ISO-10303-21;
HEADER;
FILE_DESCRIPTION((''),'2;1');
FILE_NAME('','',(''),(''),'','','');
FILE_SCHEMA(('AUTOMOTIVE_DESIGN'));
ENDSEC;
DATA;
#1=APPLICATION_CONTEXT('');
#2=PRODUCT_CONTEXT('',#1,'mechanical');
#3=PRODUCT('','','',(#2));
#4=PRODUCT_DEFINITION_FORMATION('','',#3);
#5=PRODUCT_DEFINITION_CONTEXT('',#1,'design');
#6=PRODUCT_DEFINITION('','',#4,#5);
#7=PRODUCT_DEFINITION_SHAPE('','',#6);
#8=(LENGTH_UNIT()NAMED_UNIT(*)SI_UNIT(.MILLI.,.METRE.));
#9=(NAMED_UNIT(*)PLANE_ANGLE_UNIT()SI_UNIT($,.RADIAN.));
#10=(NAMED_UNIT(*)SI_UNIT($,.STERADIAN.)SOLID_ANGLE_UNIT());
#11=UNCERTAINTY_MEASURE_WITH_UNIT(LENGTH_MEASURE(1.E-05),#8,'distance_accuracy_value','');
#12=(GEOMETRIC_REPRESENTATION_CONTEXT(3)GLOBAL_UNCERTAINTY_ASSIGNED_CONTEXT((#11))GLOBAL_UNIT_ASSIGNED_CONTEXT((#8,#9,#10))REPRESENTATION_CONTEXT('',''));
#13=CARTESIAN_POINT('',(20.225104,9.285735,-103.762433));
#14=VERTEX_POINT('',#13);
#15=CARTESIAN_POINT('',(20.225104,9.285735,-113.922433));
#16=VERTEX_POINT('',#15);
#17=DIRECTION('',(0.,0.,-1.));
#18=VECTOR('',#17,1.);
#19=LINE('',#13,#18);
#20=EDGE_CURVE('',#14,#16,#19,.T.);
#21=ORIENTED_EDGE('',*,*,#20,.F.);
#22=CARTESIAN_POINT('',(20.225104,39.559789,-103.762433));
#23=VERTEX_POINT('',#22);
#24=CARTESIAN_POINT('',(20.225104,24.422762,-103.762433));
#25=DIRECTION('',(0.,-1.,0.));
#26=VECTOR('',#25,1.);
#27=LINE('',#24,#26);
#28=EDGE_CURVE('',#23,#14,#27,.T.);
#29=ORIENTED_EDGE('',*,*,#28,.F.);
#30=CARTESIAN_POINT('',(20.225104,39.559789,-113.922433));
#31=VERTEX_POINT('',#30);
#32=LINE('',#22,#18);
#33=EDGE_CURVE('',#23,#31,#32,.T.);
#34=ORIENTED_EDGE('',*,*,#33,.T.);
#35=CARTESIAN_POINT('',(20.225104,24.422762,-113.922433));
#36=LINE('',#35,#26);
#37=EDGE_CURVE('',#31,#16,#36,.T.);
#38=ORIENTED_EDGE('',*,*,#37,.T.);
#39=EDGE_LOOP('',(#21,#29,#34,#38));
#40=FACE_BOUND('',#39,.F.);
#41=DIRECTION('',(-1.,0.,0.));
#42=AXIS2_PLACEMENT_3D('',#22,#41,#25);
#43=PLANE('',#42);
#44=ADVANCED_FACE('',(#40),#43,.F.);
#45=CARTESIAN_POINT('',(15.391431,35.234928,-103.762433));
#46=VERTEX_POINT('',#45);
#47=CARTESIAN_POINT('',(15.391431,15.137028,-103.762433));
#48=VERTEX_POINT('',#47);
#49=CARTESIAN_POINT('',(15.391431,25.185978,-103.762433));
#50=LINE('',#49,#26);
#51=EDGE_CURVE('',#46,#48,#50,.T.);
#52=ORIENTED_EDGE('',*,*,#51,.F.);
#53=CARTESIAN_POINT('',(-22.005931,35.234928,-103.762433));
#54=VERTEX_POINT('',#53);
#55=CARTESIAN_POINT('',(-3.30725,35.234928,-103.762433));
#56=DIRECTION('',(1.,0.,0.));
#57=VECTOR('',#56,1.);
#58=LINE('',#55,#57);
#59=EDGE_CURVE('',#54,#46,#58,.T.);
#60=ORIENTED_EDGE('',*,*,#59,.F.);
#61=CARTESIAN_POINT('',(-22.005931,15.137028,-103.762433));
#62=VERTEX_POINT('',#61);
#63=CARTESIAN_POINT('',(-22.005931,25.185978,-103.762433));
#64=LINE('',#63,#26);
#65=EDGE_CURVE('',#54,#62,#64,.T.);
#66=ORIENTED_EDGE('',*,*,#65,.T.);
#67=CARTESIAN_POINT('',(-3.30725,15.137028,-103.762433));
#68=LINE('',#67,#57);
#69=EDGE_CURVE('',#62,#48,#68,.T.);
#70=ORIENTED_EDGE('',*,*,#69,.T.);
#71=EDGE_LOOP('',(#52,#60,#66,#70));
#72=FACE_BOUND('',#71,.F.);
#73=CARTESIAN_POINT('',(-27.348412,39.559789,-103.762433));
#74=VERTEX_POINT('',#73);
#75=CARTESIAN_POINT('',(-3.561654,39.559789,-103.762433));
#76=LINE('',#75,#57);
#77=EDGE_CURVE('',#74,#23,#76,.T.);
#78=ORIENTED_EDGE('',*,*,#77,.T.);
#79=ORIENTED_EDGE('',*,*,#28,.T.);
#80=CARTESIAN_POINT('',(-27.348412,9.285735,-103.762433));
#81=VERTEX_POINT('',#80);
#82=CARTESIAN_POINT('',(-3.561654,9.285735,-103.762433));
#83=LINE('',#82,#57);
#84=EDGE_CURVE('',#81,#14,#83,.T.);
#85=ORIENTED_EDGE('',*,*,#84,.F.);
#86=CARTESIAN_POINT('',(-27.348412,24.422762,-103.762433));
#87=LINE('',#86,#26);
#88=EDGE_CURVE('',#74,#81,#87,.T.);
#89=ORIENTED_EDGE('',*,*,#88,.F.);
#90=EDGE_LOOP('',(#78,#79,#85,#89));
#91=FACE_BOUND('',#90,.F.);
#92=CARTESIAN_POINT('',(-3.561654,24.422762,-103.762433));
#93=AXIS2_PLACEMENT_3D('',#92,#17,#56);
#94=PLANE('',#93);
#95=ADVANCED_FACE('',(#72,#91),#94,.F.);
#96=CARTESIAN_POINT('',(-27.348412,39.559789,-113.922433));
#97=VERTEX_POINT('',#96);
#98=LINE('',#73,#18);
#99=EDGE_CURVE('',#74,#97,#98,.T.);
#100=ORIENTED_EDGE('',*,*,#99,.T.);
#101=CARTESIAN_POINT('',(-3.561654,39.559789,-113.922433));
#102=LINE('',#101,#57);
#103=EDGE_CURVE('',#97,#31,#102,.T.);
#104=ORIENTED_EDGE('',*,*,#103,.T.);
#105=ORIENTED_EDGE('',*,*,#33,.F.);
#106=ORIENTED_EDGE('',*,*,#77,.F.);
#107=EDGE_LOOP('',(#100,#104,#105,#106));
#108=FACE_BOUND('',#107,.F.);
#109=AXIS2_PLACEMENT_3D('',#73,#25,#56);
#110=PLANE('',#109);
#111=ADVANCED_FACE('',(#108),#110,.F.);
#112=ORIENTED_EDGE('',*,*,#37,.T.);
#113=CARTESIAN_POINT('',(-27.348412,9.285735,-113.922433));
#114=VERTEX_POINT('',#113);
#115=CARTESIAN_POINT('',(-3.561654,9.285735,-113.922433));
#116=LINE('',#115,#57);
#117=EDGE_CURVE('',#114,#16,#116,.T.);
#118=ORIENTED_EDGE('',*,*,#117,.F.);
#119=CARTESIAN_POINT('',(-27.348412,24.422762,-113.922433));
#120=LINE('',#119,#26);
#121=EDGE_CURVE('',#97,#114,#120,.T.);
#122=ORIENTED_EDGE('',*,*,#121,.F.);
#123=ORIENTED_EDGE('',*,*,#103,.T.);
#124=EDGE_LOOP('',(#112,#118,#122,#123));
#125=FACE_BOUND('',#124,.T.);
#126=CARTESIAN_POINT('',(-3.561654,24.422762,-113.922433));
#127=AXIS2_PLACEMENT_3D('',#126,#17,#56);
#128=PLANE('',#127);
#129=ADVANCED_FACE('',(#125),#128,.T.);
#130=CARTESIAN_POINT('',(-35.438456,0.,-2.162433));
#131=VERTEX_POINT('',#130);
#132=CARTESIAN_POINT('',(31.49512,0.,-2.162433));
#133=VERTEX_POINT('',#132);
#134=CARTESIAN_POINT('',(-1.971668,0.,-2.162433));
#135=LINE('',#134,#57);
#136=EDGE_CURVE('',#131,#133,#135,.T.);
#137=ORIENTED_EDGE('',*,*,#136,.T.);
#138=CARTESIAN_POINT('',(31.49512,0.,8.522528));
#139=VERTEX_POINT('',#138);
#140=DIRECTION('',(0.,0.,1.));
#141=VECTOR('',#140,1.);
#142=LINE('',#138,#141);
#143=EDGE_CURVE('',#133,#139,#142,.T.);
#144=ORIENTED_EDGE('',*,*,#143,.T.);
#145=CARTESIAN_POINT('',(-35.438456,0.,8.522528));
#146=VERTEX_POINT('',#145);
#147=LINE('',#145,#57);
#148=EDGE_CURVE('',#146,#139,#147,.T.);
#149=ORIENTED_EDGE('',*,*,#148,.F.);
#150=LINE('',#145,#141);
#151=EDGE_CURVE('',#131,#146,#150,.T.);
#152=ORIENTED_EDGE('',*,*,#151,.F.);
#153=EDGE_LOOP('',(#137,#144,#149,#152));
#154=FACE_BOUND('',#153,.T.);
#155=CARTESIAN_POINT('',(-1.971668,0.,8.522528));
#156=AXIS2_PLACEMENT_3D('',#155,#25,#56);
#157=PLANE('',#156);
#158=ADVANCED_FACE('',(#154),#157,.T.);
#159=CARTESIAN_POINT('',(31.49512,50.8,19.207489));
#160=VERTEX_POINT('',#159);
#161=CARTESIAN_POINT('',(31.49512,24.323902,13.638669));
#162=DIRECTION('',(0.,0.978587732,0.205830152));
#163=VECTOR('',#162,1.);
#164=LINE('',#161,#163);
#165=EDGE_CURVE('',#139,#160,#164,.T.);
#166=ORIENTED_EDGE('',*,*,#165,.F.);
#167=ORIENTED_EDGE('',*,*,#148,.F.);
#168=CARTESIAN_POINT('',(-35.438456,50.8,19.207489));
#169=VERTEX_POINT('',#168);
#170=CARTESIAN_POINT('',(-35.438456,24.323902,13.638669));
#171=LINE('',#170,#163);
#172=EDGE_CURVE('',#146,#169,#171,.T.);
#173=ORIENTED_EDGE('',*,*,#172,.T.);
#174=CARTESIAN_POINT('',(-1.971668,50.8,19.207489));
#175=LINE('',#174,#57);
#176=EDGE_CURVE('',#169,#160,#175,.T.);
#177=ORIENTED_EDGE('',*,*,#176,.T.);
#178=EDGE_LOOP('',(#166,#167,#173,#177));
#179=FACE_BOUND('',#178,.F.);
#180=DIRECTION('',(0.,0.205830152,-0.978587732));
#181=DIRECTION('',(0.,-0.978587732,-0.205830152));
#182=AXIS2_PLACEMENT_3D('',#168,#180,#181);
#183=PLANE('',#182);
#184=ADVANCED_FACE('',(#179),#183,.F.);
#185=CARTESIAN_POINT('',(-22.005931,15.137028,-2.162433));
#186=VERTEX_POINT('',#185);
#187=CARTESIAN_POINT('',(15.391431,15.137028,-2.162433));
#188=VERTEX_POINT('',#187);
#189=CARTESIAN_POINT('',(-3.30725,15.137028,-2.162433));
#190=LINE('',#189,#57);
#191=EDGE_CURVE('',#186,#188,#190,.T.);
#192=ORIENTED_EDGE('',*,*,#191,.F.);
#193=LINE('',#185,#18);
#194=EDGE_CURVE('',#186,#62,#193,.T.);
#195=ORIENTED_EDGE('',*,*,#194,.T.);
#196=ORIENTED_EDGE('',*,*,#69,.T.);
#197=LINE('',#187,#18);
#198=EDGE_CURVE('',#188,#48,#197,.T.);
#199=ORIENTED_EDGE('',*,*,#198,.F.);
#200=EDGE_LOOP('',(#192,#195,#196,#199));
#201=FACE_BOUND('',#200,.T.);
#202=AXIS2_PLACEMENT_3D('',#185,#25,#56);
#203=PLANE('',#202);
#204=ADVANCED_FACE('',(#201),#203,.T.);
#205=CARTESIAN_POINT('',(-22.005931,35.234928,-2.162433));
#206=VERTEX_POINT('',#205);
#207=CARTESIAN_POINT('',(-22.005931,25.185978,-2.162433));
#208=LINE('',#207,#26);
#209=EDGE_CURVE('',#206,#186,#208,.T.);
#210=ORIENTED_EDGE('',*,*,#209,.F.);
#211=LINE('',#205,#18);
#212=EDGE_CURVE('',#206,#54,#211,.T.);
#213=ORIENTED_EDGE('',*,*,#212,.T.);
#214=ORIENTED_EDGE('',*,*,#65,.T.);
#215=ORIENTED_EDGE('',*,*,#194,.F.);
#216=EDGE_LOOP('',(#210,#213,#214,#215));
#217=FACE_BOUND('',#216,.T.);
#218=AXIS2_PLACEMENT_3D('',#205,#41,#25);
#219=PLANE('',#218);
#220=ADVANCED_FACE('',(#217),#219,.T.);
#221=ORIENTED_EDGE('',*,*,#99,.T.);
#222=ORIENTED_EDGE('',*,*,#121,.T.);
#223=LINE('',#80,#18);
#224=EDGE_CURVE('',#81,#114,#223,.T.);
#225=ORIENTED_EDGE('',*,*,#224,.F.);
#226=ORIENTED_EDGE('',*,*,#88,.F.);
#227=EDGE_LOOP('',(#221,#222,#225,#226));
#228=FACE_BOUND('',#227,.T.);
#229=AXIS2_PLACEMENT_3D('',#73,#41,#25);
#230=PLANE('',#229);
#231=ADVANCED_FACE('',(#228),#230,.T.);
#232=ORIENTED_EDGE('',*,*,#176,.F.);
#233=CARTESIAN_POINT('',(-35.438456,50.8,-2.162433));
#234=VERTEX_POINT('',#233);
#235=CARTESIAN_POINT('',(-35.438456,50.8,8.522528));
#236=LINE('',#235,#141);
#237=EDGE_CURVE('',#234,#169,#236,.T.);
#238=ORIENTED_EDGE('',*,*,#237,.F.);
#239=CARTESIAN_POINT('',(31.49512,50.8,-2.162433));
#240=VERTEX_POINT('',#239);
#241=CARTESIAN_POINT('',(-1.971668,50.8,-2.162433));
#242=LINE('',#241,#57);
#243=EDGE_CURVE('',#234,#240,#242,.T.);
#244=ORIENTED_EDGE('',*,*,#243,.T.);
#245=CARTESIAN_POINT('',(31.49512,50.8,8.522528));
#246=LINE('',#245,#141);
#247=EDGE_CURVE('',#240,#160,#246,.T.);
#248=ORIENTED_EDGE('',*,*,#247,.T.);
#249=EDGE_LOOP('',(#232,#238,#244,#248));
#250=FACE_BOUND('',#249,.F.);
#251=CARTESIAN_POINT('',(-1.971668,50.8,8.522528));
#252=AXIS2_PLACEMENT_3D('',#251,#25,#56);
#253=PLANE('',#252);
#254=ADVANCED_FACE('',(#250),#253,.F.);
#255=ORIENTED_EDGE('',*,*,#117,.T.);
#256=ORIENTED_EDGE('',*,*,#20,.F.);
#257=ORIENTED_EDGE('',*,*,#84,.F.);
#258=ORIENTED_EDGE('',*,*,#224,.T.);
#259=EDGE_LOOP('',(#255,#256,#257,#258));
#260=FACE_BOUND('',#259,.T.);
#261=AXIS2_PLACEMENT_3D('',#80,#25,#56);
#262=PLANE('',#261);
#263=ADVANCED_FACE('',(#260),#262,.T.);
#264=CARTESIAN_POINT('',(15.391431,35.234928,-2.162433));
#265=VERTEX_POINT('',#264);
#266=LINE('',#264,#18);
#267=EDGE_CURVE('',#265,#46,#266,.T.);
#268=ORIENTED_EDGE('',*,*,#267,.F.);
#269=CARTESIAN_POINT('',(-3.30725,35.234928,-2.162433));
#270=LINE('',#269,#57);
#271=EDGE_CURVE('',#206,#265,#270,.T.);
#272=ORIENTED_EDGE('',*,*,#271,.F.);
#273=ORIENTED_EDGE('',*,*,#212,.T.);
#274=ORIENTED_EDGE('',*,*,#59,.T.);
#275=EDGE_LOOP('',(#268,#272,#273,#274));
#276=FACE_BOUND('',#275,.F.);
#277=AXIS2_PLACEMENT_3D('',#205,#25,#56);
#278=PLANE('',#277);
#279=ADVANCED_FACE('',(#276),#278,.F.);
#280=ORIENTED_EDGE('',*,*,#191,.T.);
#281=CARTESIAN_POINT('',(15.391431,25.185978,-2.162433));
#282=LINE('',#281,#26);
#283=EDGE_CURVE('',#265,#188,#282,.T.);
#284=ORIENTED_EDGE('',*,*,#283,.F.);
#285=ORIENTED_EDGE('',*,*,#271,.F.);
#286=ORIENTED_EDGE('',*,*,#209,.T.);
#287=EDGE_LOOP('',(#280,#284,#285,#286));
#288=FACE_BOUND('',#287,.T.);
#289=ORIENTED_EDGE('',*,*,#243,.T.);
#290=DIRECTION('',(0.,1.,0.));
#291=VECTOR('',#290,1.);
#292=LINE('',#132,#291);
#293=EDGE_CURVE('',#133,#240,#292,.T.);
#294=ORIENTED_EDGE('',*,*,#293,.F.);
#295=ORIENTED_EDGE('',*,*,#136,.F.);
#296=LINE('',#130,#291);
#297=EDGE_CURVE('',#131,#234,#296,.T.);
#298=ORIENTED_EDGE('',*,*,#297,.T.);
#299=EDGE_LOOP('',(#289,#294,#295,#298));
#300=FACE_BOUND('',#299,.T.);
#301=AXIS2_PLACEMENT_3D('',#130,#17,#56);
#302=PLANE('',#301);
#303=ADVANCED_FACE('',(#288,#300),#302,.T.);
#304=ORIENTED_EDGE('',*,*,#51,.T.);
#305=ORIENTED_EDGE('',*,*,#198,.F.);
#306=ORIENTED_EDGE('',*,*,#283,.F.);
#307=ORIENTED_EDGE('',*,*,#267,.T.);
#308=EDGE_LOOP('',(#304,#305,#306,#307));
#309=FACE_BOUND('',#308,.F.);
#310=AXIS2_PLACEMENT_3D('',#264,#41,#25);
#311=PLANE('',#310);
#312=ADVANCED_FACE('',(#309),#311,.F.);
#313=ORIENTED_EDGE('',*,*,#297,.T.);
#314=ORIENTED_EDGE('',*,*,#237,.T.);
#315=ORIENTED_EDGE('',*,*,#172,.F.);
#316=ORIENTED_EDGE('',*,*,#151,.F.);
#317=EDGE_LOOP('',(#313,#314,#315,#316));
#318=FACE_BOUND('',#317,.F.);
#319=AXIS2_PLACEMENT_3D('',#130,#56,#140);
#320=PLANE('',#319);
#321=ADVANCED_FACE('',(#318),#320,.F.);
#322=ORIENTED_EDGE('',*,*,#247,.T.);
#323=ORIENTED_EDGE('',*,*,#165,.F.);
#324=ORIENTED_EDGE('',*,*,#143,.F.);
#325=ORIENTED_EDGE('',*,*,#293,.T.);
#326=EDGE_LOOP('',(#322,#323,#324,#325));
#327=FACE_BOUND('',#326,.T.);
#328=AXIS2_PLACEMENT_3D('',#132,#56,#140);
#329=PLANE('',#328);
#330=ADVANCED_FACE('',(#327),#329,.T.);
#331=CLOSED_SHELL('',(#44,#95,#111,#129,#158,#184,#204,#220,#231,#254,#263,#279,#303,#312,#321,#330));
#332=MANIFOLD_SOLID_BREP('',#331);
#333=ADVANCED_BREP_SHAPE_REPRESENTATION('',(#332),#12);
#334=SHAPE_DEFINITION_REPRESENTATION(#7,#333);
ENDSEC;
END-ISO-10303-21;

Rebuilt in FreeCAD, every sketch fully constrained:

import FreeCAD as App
import Part
import Sketcher
Q = App.Units.Quantity

doc = App.newDocument("Part")
body = doc.addObject("PartDesign::Body", "Body")

# Sketch on XZ plane
sketch1 = doc.addObject("Sketcher::SketchObject", "Sketch")
body.addObject(sketch1)
sketch1.AttachmentSupport = (doc.XZ_Plane, [""])
sketch1.MapMode = "FlatFace"
sketch1.addGeometry(Part.LineSegment(App.Vector(-35, 19, 0), App.Vector(-35, -2, 0)), False)
sketch1.addGeometry(Part.LineSegment(App.Vector(-35, -2, 0), App.Vector(31, -2, 0)), False)
sketch1.addGeometry(Part.LineSegment(App.Vector(31, -2, 0), App.Vector(31, 19, 0)), False)
sketch1.addGeometry(Part.LineSegment(App.Vector(31, 19, 0), App.Vector(-35, 19, 0)), False)
sketch1.addConstraint(Sketcher.Constraint("Coincident", 0, 2, 1, 1))
sketch1.addConstraint(Sketcher.Constraint("Coincident", 1, 2, 2, 1))
sketch1.addConstraint(Sketcher.Constraint("Coincident", 2, 2, 3, 1))
sketch1.addConstraint(Sketcher.Constraint("Coincident", 3, 2, 0, 1))
sketch1.addConstraint(Sketcher.Constraint("Vertical", 0))
sketch1.addConstraint(Sketcher.Constraint("Horizontal", 1))
sketch1.addConstraint(Sketcher.Constraint("Vertical", 2))
sketch1.addConstraint(Sketcher.Constraint("Horizontal", 3))
sketch1.addConstraint(Sketcher.Constraint("DistanceY", 0, 2, 0, 1, 21.369922))
sketch1.addConstraint(Sketcher.Constraint("DistanceX", 1, 1, 1, 2, 66.933575))
sketch1.addConstraint(Sketcher.Constraint("DistanceX", -1, 1, 1, 2, 31.49512))
sketch1.addConstraint(Sketcher.Constraint("DistanceY", -1, 1, 2, 2, 19.207489))
pad1 = doc.addObject("PartDesign::Pad", "Pad")
body.addObject(pad1)
pad1.Profile = sketch1
pad1.Length = Q("2 in")
pad1.Reversed = True

# Sketch on YZ plane
sketch2 = doc.addObject("Sketcher::SketchObject", "Sketch001")
body.addObject(sketch2)
sketch2.AttachmentSupport = (doc.YZ_Plane, [""])
sketch2.MapMode = "FlatFace"
sketch2.AttachmentOffset = App.Placement(App.Vector(0, 0, -35.438456), App.Rotation())
sketch2.addGeometry(Part.LineSegment(App.Vector(0, 19, 0), App.Vector(51, 19, 0)), False)
sketch2.addGeometry(Part.LineSegment(App.Vector(51, 19, 0), App.Vector(0, 9, 0)), False)
sketch2.addGeometry(Part.LineSegment(App.Vector(0, 9, 0), App.Vector(0, 19, 0)), False)
sketch2.addConstraint(Sketcher.Constraint("Coincident", 0, 2, 1, 1))
sketch2.addConstraint(Sketcher.Constraint("Coincident", 1, 2, 2, 1))
sketch2.addConstraint(Sketcher.Constraint("Coincident", 2, 2, 0, 1))
sketch2.addConstraint(Sketcher.Constraint("Horizontal", 0))
sketch2.addConstraint(Sketcher.Constraint("Vertical", 2))
sketch2.addConstraint(Sketcher.Constraint("PointOnObject", 1, 2, -2))
sketch2.addConstraint(Sketcher.Constraint("DistanceX", 0, 1, 0, 2, Q("2 in")))
sketch2.addConstraint(Sketcher.Constraint("DistanceY", 2, 1, 2, 2, 10.684961))
sketch2.addConstraint(Sketcher.Constraint("DistanceY", -1, 1, 0, 2, 19.207489))
pocket1 = doc.addObject("PartDesign::Pocket", "Pocket")
body.addObject(pocket1)
pocket1.Profile = sketch2
pocket1.Length = Q("3 in")
pocket1.Reversed = True

# Sketch on XY plane
sketch3 = doc.addObject("Sketcher::SketchObject", "Sketch002")
body.addObject(sketch3)
sketch3.AttachmentSupport = (doc.XY_Plane, [""])
sketch3.MapMode = "FlatFace"
sketch3.AttachmentOffset = App.Placement(App.Vector(0, 0, -2.162433), App.Rotation())
sketch3.addGeometry(Part.LineSegment(App.Vector(-22, 15, 0), App.Vector(-22, 35, 0)), False)
sketch3.addGeometry(Part.LineSegment(App.Vector(-22, 35, 0), App.Vector(15, 35, 0)), False)
sketch3.addGeometry(Part.LineSegment(App.Vector(15, 35, 0), App.Vector(15, 15, 0)), False)
sketch3.addGeometry(Part.LineSegment(App.Vector(15, 15, 0), App.Vector(-22, 15, 0)), False)
sketch3.addConstraint(Sketcher.Constraint("Coincident", 0, 2, 1, 1))
sketch3.addConstraint(Sketcher.Constraint("Coincident", 1, 2, 2, 1))
sketch3.addConstraint(Sketcher.Constraint("Coincident", 2, 2, 3, 1))
sketch3.addConstraint(Sketcher.Constraint("Coincident", 3, 2, 0, 1))
sketch3.addConstraint(Sketcher.Constraint("Vertical", 0))
sketch3.addConstraint(Sketcher.Constraint("Horizontal", 1))
sketch3.addConstraint(Sketcher.Constraint("Vertical", 2))
sketch3.addConstraint(Sketcher.Constraint("Horizontal", 3))
sketch3.addConstraint(Sketcher.Constraint("DistanceY", 0, 1, 0, 2, 20.0979))
sketch3.addConstraint(Sketcher.Constraint("DistanceX", 1, 1, 1, 2, 37.397362))
sketch3.addConstraint(Sketcher.Constraint("DistanceX", 0, 2, -1, 1, 22.005931))
sketch3.addConstraint(Sketcher.Constraint("DistanceY", -1, 1, 2, 2, 15.137028))
pad2 = doc.addObject("PartDesign::Pad", "Pad001")
body.addObject(pad2)
pad2.Profile = sketch3
pad2.Length = Q("4 in")
pad2.Reversed = True

# Sketch on XY plane
sketch4 = doc.addObject("Sketcher::SketchObject", "Sketch003")
body.addObject(sketch4)
sketch4.AttachmentSupport = (doc.XY_Plane, [""])
sketch4.MapMode = "FlatFace"
sketch4.AttachmentOffset = App.Placement(App.Vector(0, 0, -103.762433), App.Rotation())
sketch4.addGeometry(Part.LineSegment(App.Vector(-27, 9, 0), App.Vector(-27, 40, 0)), False)
sketch4.addGeometry(Part.LineSegment(App.Vector(-27, 40, 0), App.Vector(20, 40, 0)), False)
sketch4.addGeometry(Part.LineSegment(App.Vector(20, 40, 0), App.Vector(20, 9, 0)), False)
sketch4.addGeometry(Part.LineSegment(App.Vector(20, 9, 0), App.Vector(-27, 9, 0)), False)
sketch4.addConstraint(Sketcher.Constraint("Coincident", 0, 2, 1, 1))
sketch4.addConstraint(Sketcher.Constraint("Coincident", 1, 2, 2, 1))
sketch4.addConstraint(Sketcher.Constraint("Coincident", 2, 2, 3, 1))
sketch4.addConstraint(Sketcher.Constraint("Coincident", 3, 2, 0, 1))
sketch4.addConstraint(Sketcher.Constraint("Vertical", 0))
sketch4.addConstraint(Sketcher.Constraint("Horizontal", 1))
sketch4.addConstraint(Sketcher.Constraint("Vertical", 2))
sketch4.addConstraint(Sketcher.Constraint("Horizontal", 3))
sketch4.addConstraint(Sketcher.Constraint("DistanceX", 1, 1, 1, 2, 47.573516))
sketch4.addConstraint(Sketcher.Constraint("DistanceY", 0, 1, 0, 2, 30.274053))
sketch4.addConstraint(Sketcher.Constraint("DistanceX", 0, 2, -1, 1, 27.348412))
sketch4.addConstraint(Sketcher.Constraint("DistanceY", -1, 1, 0, 2, 39.559789))
pad3 = doc.addObject("PartDesign::Pad", "Pad002")
body.addObject(pad3)
pad3.Profile = sketch4
pad3.Length = Q("0.4 in")
pad3.Reversed = True

doc.recompute()
